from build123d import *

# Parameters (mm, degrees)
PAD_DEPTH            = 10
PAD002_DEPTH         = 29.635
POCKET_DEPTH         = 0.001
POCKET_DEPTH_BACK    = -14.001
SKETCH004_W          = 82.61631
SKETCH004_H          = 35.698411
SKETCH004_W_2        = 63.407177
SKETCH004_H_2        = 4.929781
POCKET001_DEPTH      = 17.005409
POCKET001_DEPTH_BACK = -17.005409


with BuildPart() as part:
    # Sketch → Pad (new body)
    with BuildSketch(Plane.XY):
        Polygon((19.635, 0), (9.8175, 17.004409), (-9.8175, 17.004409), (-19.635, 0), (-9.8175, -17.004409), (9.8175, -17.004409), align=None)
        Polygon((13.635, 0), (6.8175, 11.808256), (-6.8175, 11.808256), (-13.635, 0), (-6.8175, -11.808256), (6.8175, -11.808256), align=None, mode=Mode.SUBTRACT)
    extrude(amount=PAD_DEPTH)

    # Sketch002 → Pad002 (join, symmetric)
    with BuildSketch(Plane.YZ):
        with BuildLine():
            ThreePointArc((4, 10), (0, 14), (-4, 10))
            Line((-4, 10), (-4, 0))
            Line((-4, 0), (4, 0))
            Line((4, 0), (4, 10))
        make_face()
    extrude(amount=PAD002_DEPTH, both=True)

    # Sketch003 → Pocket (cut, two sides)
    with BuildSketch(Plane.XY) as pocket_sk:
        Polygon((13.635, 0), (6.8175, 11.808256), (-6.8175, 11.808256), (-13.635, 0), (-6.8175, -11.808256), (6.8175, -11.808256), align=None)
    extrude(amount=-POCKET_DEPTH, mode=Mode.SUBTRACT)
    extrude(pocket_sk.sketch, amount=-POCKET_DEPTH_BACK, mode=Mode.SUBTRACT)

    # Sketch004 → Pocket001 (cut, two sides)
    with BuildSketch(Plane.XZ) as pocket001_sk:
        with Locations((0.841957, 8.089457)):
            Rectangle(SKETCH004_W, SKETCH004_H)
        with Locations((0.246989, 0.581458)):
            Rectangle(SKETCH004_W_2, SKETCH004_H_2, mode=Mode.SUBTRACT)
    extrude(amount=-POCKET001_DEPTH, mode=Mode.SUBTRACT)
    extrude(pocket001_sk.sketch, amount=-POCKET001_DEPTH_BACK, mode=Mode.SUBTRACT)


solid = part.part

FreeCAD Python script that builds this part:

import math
import FreeCAD as App
import Part
import Sketcher

V = App.Vector
Q = App.Units.Quantity

doc = App.newDocument("Part")
body = doc.addObject("PartDesign::Body", "Body")

sketch1 = body.newObject("Sketcher::SketchObject", "Sketch")
sketch1.AttachmentSupport = (doc.getObject("XY_Plane"), [""])
sketch1.MapMode = "FlatFace"
sketch1.addGeometry([
    Part.LineSegment(V(20, 0, 0), V(10, 17, 0)),
    Part.LineSegment(V(10, 17, 0), V(-10, 17, 0)),
    Part.LineSegment(V(-10, 17, 0), V(-20, 0, 0)),
    Part.LineSegment(V(-20, 0, 0), V(-10, -17, 0)),
    Part.LineSegment(V(-10, -17, 0), V(10, -17, 0)),
    Part.LineSegment(V(10, -17, 0), V(20, 0, 0)),
    Part.LineSegment(V(7, 12, 0), V(14, 0, 0)),
    Part.LineSegment(V(14, 0, 0), V(7, -12, 0)),
    Part.LineSegment(V(7, -12, 0), V(-7, -12, 0)),
    Part.LineSegment(V(-7, -12, 0), V(-14, 0, 0)),
    Part.LineSegment(V(-14, 0, 0), V(-7, 12, 0)),
    Part.LineSegment(V(-7, 12, 0), V(7, 12, 0)),
], False)
sketch1.addConstraint([
    Sketcher.Constraint("Coincident", 0, 2, 1, 1),
    Sketcher.Constraint("Coincident", 1, 2, 2, 1),
    Sketcher.Constraint("Coincident", 2, 2, 3, 1),
    Sketcher.Constraint("Coincident", 3, 2, 4, 1),
    Sketcher.Constraint("Coincident", 4, 2, 5, 1),
    Sketcher.Constraint("Coincident", 5, 2, 0, 1),
    Sketcher.Constraint("Coincident", 6, 2, 7, 1),
    Sketcher.Constraint("Coincident", 7, 2, 8, 1),
    Sketcher.Constraint("Coincident", 8, 2, 9, 1),
    Sketcher.Constraint("Coincident", 9, 2, 10, 1),
    Sketcher.Constraint("Coincident", 10, 2, 11, 1),
    Sketcher.Constraint("Coincident", 11, 2, 6, 1),
    Sketcher.Constraint("Horizontal", 1),
    Sketcher.Constraint("Horizontal", 4),
    Sketcher.Constraint("Horizontal", 8),
    Sketcher.Constraint("Horizontal", 11),
    Sketcher.Constraint("Symmetric", 0, 2, 3, 2, -1, 1),
    Sketcher.Constraint("Symmetric", 2, 2, 5, 2, -1, 1),
    Sketcher.Constraint("Symmetric", 6, 2, 9, 2, -1, 1),
    Sketcher.Constraint("Symmetric", 7, 2, 10, 2, -1, 1),
    Sketcher.Constraint("PointOnObject", 2, 2, -1),
    Sketcher.Constraint("PointOnObject", 6, 2, -1),
    Sketcher.Constraint("Parallel", 2, 5),
    Sketcher.Constraint("Parallel", 3, 6),
    Sketcher.Constraint("Parallel", 5, 7),
    Sketcher.Constraint("Parallel", 6, 9),
    Sketcher.Constraint("Vertical", 1, 2, 3, 2),
    Sketcher.Constraint("Angle", 0, Q("120 deg")),
    Sketcher.Constraint("DistanceX", 6, 2, 5, 2, Q("6 mm")),
    Sketcher.Constraint("DistanceX", 7, 2, 4, 2, Q("3 mm")),
    Sketcher.Constraint("DistanceX", 1, 2, 1, 1, Q("19.635 mm")),
    Sketcher.Constraint("DistanceX", 2, 2, 5, 2, Q("39.27 mm")),
])
pad1 = body.newObject("PartDesign::Pad", "Pad")
pad1.Profile = sketch1
pad1.Length = 10

sketch2 = body.newObject("Sketcher::SketchObject", "Sketch001")
sketch2.AttachmentSupport = (doc.getObject("YZ_Plane"), [""])
sketch2.MapMode = "FlatFace"
sketch2.addGeometry([
    Part.ArcOfCircle(Part.Circle(V(0, 10, 0), V(0, 0, 1), 4), math.radians(0), math.radians(180)),
    Part.LineSegment(V(-4, 10, 0), V(-4, 0, 0)),
    Part.LineSegment(V(-4, 0, 0), V(4, 0, 0)),
    Part.LineSegment(V(4, 0, 0), V(4, 10, 0)),
], False)
sketch2.addConstraint([
    Sketcher.Constraint("Tangent", 0, 2, 1, 1),
    Sketcher.Constraint("Coincident", 1, 2, 2, 1),
    Sketcher.Constraint("Coincident", 2, 2, 3, 1),
    Sketcher.Constraint("Tangent", 3, 2, 0, 1),
    Sketcher.Constraint("Vertical", 1),
    Sketcher.Constraint("Horizontal", 2),
    Sketcher.Constraint("Vertical", 3),
    Sketcher.Constraint("Symmetric", 1, 2, 2, 2, -1, 1),
    Sketcher.Constraint("Radius", 0, Q("4 mm")),
    Sketcher.Constraint("DistanceY", 1, 2, 1, 1, Q("10 mm")),
])
pad2 = body.newObject("PartDesign::Pad", "Pad001")
pad2.Profile = sketch2
pad2.Length = 59.27
pad2.Midplane = True

sketch3 = body.newObject("Sketcher::SketchObject", "Sketch002")
sketch3.AttachmentSupport = (doc.getObject("XY_Plane"), [""])
sketch3.MapMode = "FlatFace"
sketch3.addGeometry([
    Part.LineSegment(V(14, 0, 0), V(7, 12, 0)),
    Part.LineSegment(V(7, 12, 0), V(-7, 12, 0)),
    Part.LineSegment(V(-7, 12, 0), V(-14, 0, 0)),
    Part.LineSegment(V(-14, 0, 0), V(-7, -12, 0)),
    Part.LineSegment(V(-7, -12, 0), V(7, -12, 0)),
    Part.LineSegment(V(7, -12, 0), V(14, 0, 0)),
], False)
sketch3.addConstraint([
    Sketcher.Constraint("Coincident", 0, 2, 1, 1),
    Sketcher.Constraint("Coincident", 1, 2, 2, 1),
    Sketcher.Constraint("Coincident", 2, 2, 3, 1),
    Sketcher.Constraint("Coincident", 3, 2, 4, 1),
    Sketcher.Constraint("Coincident", 4, 2, 5, 1),
    Sketcher.Constraint("Coincident", 5, 2, 0, 1),
    Sketcher.Constraint("Horizontal", 1),
    Sketcher.Constraint("Horizontal", 4),
    Sketcher.Constraint("Symmetric", 0, 2, 3, 2, -1, 1),
    Sketcher.Constraint("Symmetric", 2, 2, 5, 2, -1, 1),
    Sketcher.Constraint("PointOnObject", 2, 2, -1),
    Sketcher.Constraint("Parallel", 2, 5),
    Sketcher.Constraint("Vertical", 1, 2, 3, 2),
    Sketcher.Constraint("Angle", 0, Q("120.000001 deg")),
    Sketcher.Constraint("DistanceX", 1, 2, 1, 1, Q("13.635 mm")),
    Sketcher.Constraint("DistanceX", 2, 2, 5, 2, Q("27.27 mm")),
])
pocket1 = body.newObject("PartDesign::Pocket", "Pocket")
pocket1.Profile = sketch3
pocket1.Type = "ThroughAll"
pocket1.Midplane = True

sketch4 = body.newObject("Sketcher::SketchObject", "Sketch003")
sketch4.AttachmentSupport = (doc.getObject("XZ_Plane"), [""])
sketch4.MapMode = "FlatFace"
sketch4.addGeometry([
    Part.LineSegment(V(-40.5, 25.9, 0), V(-40.5, -9.8, 0)),
    Part.LineSegment(V(-40.5, -9.8, 0), V(42.2, -9.8, 0)),
    Part.LineSegment(V(42.2, -9.8, 0), V(42.2, 25.9, 0)),
    Part.LineSegment(V(42.2, 25.9, 0), V(-40.5, 25.9, 0)),
    Part.LineSegment(V(32, -1.9, 0), V(-31.5, -1.9, 0)),
    Part.LineSegment(V(-31.5, -1.9, 0), V(-31.5, 3, 0)),
    Part.LineSegment(V(-31.5, 3, 0), V(32, 3, 0)),
    Part.LineSegment(V(32, 3, 0), V(32, -1.9, 0)),
], False)
sketch4.addConstraint([
    Sketcher.Constraint("Coincident", 0, 2, 1, 1),
    Sketcher.Constraint("Coincident", 1, 2, 2, 1),
    Sketcher.Constraint("Coincident", 2, 2, 3, 1),
    Sketcher.Constraint("Coincident", 3, 2, 0, 1),
    Sketcher.Constraint("Coincident", 4, 2, 5, 1),
    Sketcher.Constraint("Coincident", 5, 2, 6, 1),
    Sketcher.Constraint("Coincident", 6, 2, 7, 1),
    Sketcher.Constraint("Coincident", 7, 2, 4, 1),
    Sketcher.Constraint("Vertical", 0),
    Sketcher.Constraint("Horizontal", 1),
    Sketcher.Constraint("Vertical", 2),
    Sketcher.Constraint("Horizontal", 3),
    Sketcher.Constraint("Horizontal", 4),
    Sketcher.Constraint("Vertical", 5),
    Sketcher.Constraint("Horizontal", 6),
    Sketcher.Constraint("Vertical", 7),
    Sketcher.Constraint("DistanceX", 1, 1, 1, 2, Q("82.61631 mm")),
    Sketcher.Constraint("DistanceY", 0, 2, 0, 1, Q("35.698411 mm")),
    Sketcher.Constraint("DistanceY", 5, 1, 5, 2, Q("4.929781 mm")),
    Sketcher.Constraint("DistanceX", 4, 2, -1, 1, Q("31.456599 mm")),
    Sketcher.Constraint("DistanceX", 0, 2, 4, 2, Q("9.009598 mm")),
    Sketcher.Constraint("DistanceX", 4, 2, 4, 1, Q("63.407177 mm")),
    Sketcher.Constraint("DistanceY", 0, 2, -1, 1, Q("9.759749 mm")),
    Sketcher.Constraint("DistanceY", -1, 1, 5, 2, Q("3.046349 mm")),
])
pocket2 = body.newObject("PartDesign::Pocket", "Pocket001")
pocket2.Profile = sketch4
pocket2.Type = "ThroughAll"
pocket2.Midplane = True

doc.recompute()
